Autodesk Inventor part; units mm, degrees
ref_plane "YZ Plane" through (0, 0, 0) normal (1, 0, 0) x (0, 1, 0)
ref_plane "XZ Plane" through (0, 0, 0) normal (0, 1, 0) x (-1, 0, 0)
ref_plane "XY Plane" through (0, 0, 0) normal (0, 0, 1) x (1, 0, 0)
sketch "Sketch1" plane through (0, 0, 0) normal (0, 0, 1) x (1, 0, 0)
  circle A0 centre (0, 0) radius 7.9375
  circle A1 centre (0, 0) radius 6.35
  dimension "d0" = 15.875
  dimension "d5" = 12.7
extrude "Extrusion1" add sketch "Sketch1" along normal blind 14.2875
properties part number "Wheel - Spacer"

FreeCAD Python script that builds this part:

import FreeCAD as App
import Part
import Sketcher
Q = App.Units.Quantity

doc = App.newDocument("Part")
params = doc.addObject("Spreadsheet::Sheet", "Params")
for row, (alias, value) in enumerate([
    ("sketch1_diameter", "0.5 in"),
    ("sketch1_diameter2", "0.625 in"),
    ("pad1_length", "0.5625 in"),
], start=1):
    params.set(f"A{row}", alias)
    params.set(f"B{row}", "=" + value)
    params.setAlias(f"B{row}", alias)

body = doc.addObject("PartDesign::Body", "Body")

# Sketch on XY plane
sketch1 = body.newObject("Sketcher::SketchObject", "Sketch")
sketch1.AttachmentSupport = (doc.getObject("XY_Plane"), [""])
sketch1.MapMode = "FlatFace"
sketch1.addGeometry(Part.Circle(App.Vector(0, 0, 0), App.Vector(0, 0, 1), 7.9375), False)
sketch1.addGeometry(Part.Circle(App.Vector(0, 0, 0), App.Vector(0, 0, 1), 6.35), False)
sketch1.addConstraint(Sketcher.Constraint("Coincident", 0, 3, -1, 1))
sketch1.addConstraint(Sketcher.Constraint("Coincident", 1, 3, -1, 1))
sketch1.addConstraint(Sketcher.Constraint("Diameter", 1, Q("0.5 in")))
sketch1.addConstraint(Sketcher.Constraint("Diameter", 0, Q("0.625 in")))
sketch1.setExpression("Constraints[2]", "Params.sketch1_diameter")
sketch1.setExpression("Constraints[3]", "Params.sketch1_diameter2")
pad1 = body.newObject("PartDesign::Pad", "Pad")
pad1.Profile = sketch1
pad1.setExpression("Length", "Params.pad1_length")

doc.recompute()
